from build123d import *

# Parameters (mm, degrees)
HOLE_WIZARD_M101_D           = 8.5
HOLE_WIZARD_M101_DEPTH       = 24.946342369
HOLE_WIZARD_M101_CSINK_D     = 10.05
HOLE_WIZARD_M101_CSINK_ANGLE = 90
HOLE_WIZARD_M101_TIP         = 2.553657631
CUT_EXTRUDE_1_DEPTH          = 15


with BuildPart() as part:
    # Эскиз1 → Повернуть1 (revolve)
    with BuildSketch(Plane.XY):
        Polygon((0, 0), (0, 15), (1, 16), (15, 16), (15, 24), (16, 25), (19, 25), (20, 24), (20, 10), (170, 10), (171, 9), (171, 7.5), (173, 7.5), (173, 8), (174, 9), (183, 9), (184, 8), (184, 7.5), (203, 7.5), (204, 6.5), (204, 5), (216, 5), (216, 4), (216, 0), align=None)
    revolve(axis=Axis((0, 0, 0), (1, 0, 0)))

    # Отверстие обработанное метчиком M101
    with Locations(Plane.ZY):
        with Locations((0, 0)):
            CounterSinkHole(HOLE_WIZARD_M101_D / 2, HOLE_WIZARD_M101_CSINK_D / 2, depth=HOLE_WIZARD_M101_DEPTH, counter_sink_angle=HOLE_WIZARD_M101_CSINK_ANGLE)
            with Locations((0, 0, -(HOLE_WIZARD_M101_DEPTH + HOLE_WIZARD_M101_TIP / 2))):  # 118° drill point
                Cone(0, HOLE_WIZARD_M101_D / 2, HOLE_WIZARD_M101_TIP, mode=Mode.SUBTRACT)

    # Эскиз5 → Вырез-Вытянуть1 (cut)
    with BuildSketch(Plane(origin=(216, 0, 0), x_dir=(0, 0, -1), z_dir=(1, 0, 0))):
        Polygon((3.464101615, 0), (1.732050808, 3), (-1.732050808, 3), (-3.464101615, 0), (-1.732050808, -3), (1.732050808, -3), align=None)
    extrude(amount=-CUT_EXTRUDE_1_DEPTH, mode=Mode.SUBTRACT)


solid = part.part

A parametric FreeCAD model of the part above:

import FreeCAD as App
import Part
import Sketcher

V = App.Vector
Q = App.Units.Quantity


def add_polygon(sketch, points):
    """Adds a closed chain of lines whose ends are joined by coincident constraints."""
    first, n = sketch.GeometryCount, len(points)
    for a, b in zip(points, points[1:] + points[:1]):
        sketch.addGeometry(Part.LineSegment(App.Vector(*a, 0), App.Vector(*b, 0)), False)
    for i in range(n):
        sketch.addConstraint(Sketcher.Constraint("Coincident", first + i, 2, first + (i + 1) % n, 1))

doc = App.newDocument("Part")
params = doc.addObject("Spreadsheet::Sheet", "Params")
for row, (alias, value) in enumerate([
    ("sketch1_width", "216 mm"),
    ("sketch1_width2", "12 mm"),
    ("sketch1_width3", "19 mm"),
    ("sketch1_width4", "9 mm"),
    ("sketch1_width5", "2 mm"),
    ("revolution_angle", "360 deg"),
    ("sketch2_diameter", "8.5 mm"),
    ("hole_diameter", "8.5 mm"),
    ("hole_depth", "24.946342 mm"),
    ("hole_csink_diameter", "10.05 mm"),
    ("pocket1_length", "15 mm"),
], start=1):
    params.set(f"A{row}", alias)
    params.set(f"B{row}", "=" + value)
    params.setAlias(f"B{row}", alias)

body = doc.addObject("PartDesign::Body", "Body")

# Sketch on XY plane
sketch1 = body.newObject("Sketcher::SketchObject", "Sketch")
sketch1.AttachmentSupport = (doc.getObject("XY_Plane"), [""])
sketch1.MapMode = "FlatFace"
add_polygon(sketch1, [(0, 15), (0, 0), (216, 0), (216, 5), (204, 5), (204, 6.5), (203, 7.5), (184, 7.5), (184, 8), (183, 9), (174, 9), (173, 8), (173, 7.5), (171, 7.5), (171, 9), (170, 10), (20, 10), (20, 24), (19, 25), (16, 25), (15, 24), (15, 16), (1, 16)])  # lines 0-22
sketch1.addConstraint([
    Sketcher.Constraint("Vertical", 0),
    Sketcher.Constraint("Horizontal", 1),
    Sketcher.Constraint("Vertical", 2),
    Sketcher.Constraint("Horizontal", 3),
    Sketcher.Constraint("Vertical", 4),
    Sketcher.Constraint("Horizontal", 6),
    Sketcher.Constraint("Vertical", 7),
    Sketcher.Constraint("Horizontal", 9),
    Sketcher.Constraint("Vertical", 11),
    Sketcher.Constraint("Horizontal", 12),
    Sketcher.Constraint("Vertical", 13),
    Sketcher.Constraint("Horizontal", 15),
    Sketcher.Constraint("Vertical", 16),
    Sketcher.Constraint("Horizontal", 18),
    Sketcher.Constraint("Vertical", 20),
    Sketcher.Constraint("Horizontal", 21),
    Sketcher.Constraint("Coincident", 0, 2, -1, 1),
    Sketcher.Constraint("Parallel", 5, 8),
    Sketcher.Constraint("Perpendicular", 8, 10),
    Sketcher.Constraint("Perpendicular", 10, 14),
    Sketcher.Constraint("Parallel", 14, 17),
    Sketcher.Constraint("Perpendicular", 17, 19),
    Sketcher.Constraint("Parallel", 19, 22),
    Sketcher.Constraint("Horizontal", 7, 2, 10, 2),
    Sketcher.Constraint("Horizontal", 6, 2, 11, 2),
    Sketcher.Constraint("Horizontal", 9, 2, 13, 2),
    Sketcher.Constraint("Horizontal", 16, 2, 19, 2),
    Sketcher.Constraint("Equal", 4, 13),
    Sketcher.Constraint("Equal", 21, 16),
    Sketcher.Constraint("Equal", 5, 8),
    Sketcher.Constraint("Equal", 8, 10),
    Sketcher.Constraint("Equal", 10, 14),
    Sketcher.Constraint("Equal", 14, 17),
    Sketcher.Constraint("Equal", 19, 22),
    Sketcher.Constraint("DistanceX", 1, 1, 1, 2, Q("216 mm")),
    Sketcher.Constraint("DistanceX", 3, 2, 3, 1, Q("12 mm")),
    Sketcher.Constraint("DistanceX", 6, 2, 6, 1, Q("19 mm")),
    Sketcher.Constraint("DistanceX", 9, 2, 9, 1, Q("9 mm")),
    Sketcher.Constraint("DistanceX", 12, 2, 12, 1, Q("2 mm")),
    Sketcher.Constraint("DistanceX", 15, 2, 15, 1, Q("150 mm")),
    Sketcher.Constraint("DistanceX", 18, 2, 18, 1, Q("3 mm")),
    Sketcher.Constraint("DistanceX", 21, 2, 21, 1, Q("14 mm")),
    Sketcher.Constraint("DistanceY", 0, 2, 0, 1, Q("15 mm")),
    Sketcher.Constraint("DistanceY", 2, 1, 2, 2, Q("5 mm")),
    Sketcher.Constraint("DistanceY", 20, 2, 20, 1, Q("8 mm")),
])
sketch1.setExpression("Constraints[57]", "Params.sketch1_width")
sketch1.setExpression("Constraints[58]", "Params.sketch1_width2")
sketch1.setExpression("Constraints[59]", "Params.sketch1_width3")
sketch1.setExpression("Constraints[60]", "Params.sketch1_width4")
sketch1.setExpression("Constraints[61]", "Params.sketch1_width5")
revolution = body.newObject("PartDesign::Revolution", "Revolution")
revolution.Profile = sketch1
revolution.ReferenceAxis = (sketch1, ["H_Axis"])
revolution.setExpression("Angle", "Params.revolution_angle")

# Sketch on YZ plane
sketch2 = body.newObject("Sketcher::SketchObject", "Sketch001")
sketch2.AttachmentSupport = (doc.getObject("YZ_Plane"), [""])
sketch2.MapMode = "FlatFace"
sketch2.addGeometry(Part.Circle(V(0, 0, 0), V(0, 0, 1), 4.2), False)
sketch2.addConstraint([
    Sketcher.Constraint("Coincident", 0, 3, -1, 1),
    Sketcher.Constraint("Diameter", 0, Q("8.5 mm")),
])
sketch2.setExpression("Constraints[1]", "Params.sketch2_diameter")
doc.recompute()
hole = body.newObject("PartDesign::Hole", "Hole")
hole.Profile = sketch2
hole.ThreadType = "None"
hole.setExpression("Diameter", "Params.hole_diameter")
hole.DepthType = "Dimension"
hole.setExpression("Depth", "Params.hole_depth")
hole.DrillPoint = "Angled"
hole.DrillPointAngle = 118
hole.HoleCutType = "Countersink"
hole.setExpression("HoleCutDiameter", "Params.hole_csink_diameter")
hole.HoleCutCountersinkAngle = 90
hole.Reversed = True

# Sketch on YZ plane
sketch3 = body.newObject("Sketcher::SketchObject", "Sketch002")
sketch3.AttachmentSupport = (doc.getObject("YZ_Plane"), [""])
sketch3.MapMode = "FlatFace"
sketch3.AttachmentOffset = App.Placement(V(0, 0, 216), App.Rotation())
add_polygon(sketch3, [(0, -3.5), (3, -1.7), (3, 1.7), (0, 3.5), (-3, 1.7), (-3, -1.7)])  # lines 0-5
sketch3.addConstraint([
    Sketcher.Constraint("Vertical", 1),
    Sketcher.Constraint("Vertical", 4),
    Sketcher.Constraint("Symmetric", 0, 2, 3, 2, -1, 1),
    Sketcher.Constraint("Symmetric", 2, 2, 5, 2, -1, 1),
    Sketcher.Constraint("PointOnObject", 2, 2, -2),
    Sketcher.Constraint("Parallel", 2, 5),
    Sketcher.Constraint("Horizontal", 1, 2, 3, 2),
    Sketcher.Constraint("Angle", 0, Q("30 deg")),
    Sketcher.Constraint("DistanceX", -1, 1, 0, 2, Q("3 mm")),
    Sketcher.Constraint("DistanceY", 1, 1, 1, 2, Q("3.464102 mm")),
])
pocket1 = body.newObject("PartDesign::Pocket", "Pocket")
pocket1.Profile = sketch3
pocket1.setExpression("Length", "Params.pocket1_length")

doc.recompute()
